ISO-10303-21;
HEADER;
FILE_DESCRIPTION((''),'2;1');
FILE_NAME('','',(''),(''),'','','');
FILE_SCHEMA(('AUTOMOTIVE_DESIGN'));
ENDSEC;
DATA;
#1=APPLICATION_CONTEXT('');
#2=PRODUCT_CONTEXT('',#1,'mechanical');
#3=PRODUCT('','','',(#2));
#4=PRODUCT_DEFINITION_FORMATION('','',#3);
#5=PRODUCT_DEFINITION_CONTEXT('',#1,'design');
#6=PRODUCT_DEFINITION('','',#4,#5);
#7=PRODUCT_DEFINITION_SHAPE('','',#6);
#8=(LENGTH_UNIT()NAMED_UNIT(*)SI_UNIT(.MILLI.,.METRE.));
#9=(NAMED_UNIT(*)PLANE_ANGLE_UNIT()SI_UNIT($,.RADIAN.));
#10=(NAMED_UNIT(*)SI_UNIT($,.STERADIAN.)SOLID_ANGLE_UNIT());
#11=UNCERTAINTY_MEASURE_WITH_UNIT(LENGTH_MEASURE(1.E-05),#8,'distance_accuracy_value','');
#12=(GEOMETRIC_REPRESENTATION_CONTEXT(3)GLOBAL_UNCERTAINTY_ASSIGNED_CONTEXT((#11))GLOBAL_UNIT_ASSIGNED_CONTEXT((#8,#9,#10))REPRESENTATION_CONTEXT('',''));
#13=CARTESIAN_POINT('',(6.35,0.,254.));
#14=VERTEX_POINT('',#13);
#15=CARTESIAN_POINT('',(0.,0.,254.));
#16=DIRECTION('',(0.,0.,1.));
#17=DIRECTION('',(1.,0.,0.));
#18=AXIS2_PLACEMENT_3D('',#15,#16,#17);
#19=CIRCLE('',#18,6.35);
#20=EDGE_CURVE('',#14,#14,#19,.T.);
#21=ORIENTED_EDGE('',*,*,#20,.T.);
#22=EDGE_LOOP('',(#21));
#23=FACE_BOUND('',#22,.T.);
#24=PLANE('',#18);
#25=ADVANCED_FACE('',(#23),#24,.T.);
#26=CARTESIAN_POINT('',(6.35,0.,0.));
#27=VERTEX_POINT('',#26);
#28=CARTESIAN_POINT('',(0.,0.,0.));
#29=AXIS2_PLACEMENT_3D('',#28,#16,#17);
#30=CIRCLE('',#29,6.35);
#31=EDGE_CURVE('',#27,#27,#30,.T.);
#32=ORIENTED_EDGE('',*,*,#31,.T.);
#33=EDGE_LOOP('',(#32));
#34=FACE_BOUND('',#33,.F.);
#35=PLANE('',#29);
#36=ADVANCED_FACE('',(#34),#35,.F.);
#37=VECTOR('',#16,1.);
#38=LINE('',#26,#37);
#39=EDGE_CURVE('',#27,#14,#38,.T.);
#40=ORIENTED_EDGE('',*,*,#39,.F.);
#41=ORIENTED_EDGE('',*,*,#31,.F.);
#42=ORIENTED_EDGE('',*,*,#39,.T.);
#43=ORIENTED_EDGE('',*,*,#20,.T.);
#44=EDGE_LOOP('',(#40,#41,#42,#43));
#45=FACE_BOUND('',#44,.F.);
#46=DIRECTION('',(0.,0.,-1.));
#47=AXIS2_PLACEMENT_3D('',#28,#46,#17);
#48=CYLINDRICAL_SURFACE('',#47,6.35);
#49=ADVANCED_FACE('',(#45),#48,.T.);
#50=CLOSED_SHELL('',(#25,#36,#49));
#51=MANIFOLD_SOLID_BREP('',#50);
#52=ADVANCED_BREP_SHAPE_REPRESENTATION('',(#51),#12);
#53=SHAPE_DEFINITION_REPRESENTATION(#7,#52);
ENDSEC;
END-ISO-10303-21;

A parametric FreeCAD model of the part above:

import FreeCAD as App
import Part
import Sketcher
from FreeCAD import Vector
Q = App.Units.Quantity

doc = App.newDocument("Part")
body = doc.addObject("PartDesign::Body", "Body")

# Sketch on XY plane
sketch1 = doc.addObject("Sketcher::SketchObject", "Sketch")
body.addObject(sketch1)
sketch1.AttachmentSupport = (doc.XY_Plane, [""])
sketch1.MapMode = "FlatFace"
sketch1.addGeometry(Part.Circle(Vector(0, 0, 0), Vector(0, 0, 1), 6.35), False)
sketch1.addConstraint([
    Sketcher.Constraint("Coincident", 0, 3, -1, 1),
    Sketcher.Constraint("Diameter", 0, Q("0.5 in")),
])
pad1 = doc.addObject("PartDesign::Pad", "Pad")
body.addObject(pad1)
pad1.Profile = sketch1
pad1.Length = Q("10 in")

doc.recompute()
